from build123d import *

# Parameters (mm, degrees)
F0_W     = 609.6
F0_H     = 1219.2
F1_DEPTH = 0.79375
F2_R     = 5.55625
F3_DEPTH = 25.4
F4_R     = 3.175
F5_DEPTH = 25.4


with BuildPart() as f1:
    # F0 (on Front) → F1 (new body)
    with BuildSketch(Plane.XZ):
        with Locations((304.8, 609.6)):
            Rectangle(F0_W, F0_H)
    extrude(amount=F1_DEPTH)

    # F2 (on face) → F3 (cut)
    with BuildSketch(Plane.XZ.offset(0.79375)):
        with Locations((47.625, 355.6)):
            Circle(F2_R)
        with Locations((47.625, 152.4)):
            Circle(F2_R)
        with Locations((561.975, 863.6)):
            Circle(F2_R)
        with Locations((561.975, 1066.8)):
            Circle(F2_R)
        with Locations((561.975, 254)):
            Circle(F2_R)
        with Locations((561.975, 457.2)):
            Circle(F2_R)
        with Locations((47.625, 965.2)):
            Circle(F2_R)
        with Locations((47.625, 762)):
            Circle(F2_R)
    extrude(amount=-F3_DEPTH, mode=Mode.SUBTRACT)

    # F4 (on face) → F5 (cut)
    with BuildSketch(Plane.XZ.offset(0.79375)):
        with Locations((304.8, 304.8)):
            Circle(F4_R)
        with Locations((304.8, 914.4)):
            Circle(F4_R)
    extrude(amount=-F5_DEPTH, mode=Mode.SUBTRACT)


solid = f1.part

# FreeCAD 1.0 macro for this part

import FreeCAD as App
import Part
import Sketcher
from FreeCAD import Vector
Q = App.Units.Quantity

doc = App.newDocument("Part")
body = doc.addObject("PartDesign::Body", "Body")

# Sketch on XZ plane
sketch1 = doc.addObject("Sketcher::SketchObject", "Sketch")
body.addObject(sketch1)
sketch1.AttachmentSupport = (doc.XZ_Plane, [""])
sketch1.MapMode = "FlatFace"
sketch1.addGeometry([
    Part.LineSegment(Vector(0, 1219, 0), Vector(0, 0, 0)),
    Part.LineSegment(Vector(0, 0, 0), Vector(610, 0, 0)),
    Part.LineSegment(Vector(610, 0, 0), Vector(610, 1219, 0)),
    Part.LineSegment(Vector(610, 1219, 0), Vector(0, 1219, 0)),
], False)
sketch1.addConstraint([
    Sketcher.Constraint("Coincident", 0, 2, 1, 1),
    Sketcher.Constraint("Coincident", 1, 2, 2, 1),
    Sketcher.Constraint("Coincident", 2, 2, 3, 1),
    Sketcher.Constraint("Coincident", 3, 2, 0, 1),
    Sketcher.Constraint("Vertical", 0),
    Sketcher.Constraint("Horizontal", 1),
    Sketcher.Constraint("Vertical", 2),
    Sketcher.Constraint("Horizontal", 3),
    Sketcher.Constraint("Coincident", 0, 2, -1, 1),
    Sketcher.Constraint("DistanceX", 1, 1, 1, 2, Q("24 in")),
    Sketcher.Constraint("DistanceY", 0, 2, 0, 1, Q("48 in")),
])
pad1 = doc.addObject("PartDesign::Pad", "Pad")
body.addObject(pad1)
pad1.Profile = sketch1
pad1.Length = Q("0.03125 in")

# Sketch on XZ plane
sketch2 = doc.addObject("Sketcher::SketchObject", "Sketch001")
body.addObject(sketch2)
sketch2.AttachmentSupport = (doc.XZ_Plane, [""])
sketch2.MapMode = "FlatFace"
sketch2.AttachmentOffset = App.Placement(Vector(0, 0, 0.03125 * 25.4), App.Rotation())
sketch2.addGeometry([
    Part.Circle(Vector(48, 356, 0), Vector(0, 0, 1), 6),  # 0
    Part.Circle(Vector(48, 152, 0), Vector(0, 0, 1), 6),  # 1
    Part.Circle(Vector(562, 864, 0), Vector(0, 0, 1), 6),  # 2
    Part.Circle(Vector(562, 1067, 0), Vector(0, 0, 1), 6),  # 3
    Part.Circle(Vector(562, 254, 0), Vector(0, 0, 1), 6),  # 4
    Part.Circle(Vector(562, 457, 0), Vector(0, 0, 1), 6),  # 5
    Part.Circle(Vector(48, 965, 0), Vector(0, 0, 1), 6),  # 6
    Part.Circle(Vector(48, 762, 0), Vector(0, 0, 1), 6),  # 7
], False)
sketch2.addConstraint([
    Sketcher.Constraint("Equal", 0, 1),
    Sketcher.Constraint("Equal", 1, 2),
    Sketcher.Constraint("Equal", 2, 3),
    Sketcher.Constraint("Equal", 3, 4),
    Sketcher.Constraint("Equal", 4, 5),
    Sketcher.Constraint("Equal", 5, 6),
    Sketcher.Constraint("Equal", 6, 7),
    Sketcher.Constraint("Vertical", 0, 3, 1, 3),
    Sketcher.Constraint("Vertical", 2, 3, 3, 3),
    Sketcher.Constraint("Vertical", 3, 3, 4, 3),
    Sketcher.Constraint("Vertical", 4, 3, 5, 3),
    Sketcher.Constraint("Vertical", 1, 3, 6, 3),
    Sketcher.Constraint("Vertical", 6, 3, 7, 3),
    Sketcher.Constraint("Diameter", 0, Q("0.4375 in")),
    Sketcher.Constraint("DistanceY", -1, 1, 0, 3, Q("14 in")),
    Sketcher.Constraint("DistanceY", -1, 1, 1, 3, Q("6 in")),
    Sketcher.Constraint("DistanceY", -1, 1, 2, 3, Q("34 in")),
    Sketcher.Constraint("DistanceY", -1, 1, 3, 3, Q("42 in")),
    Sketcher.Constraint("DistanceY", -1, 1, 4, 3, Q("10 in")),
    Sketcher.Constraint("DistanceY", -1, 1, 5, 3, Q("18 in")),
    Sketcher.Constraint("DistanceY", -1, 1, 6, 3, Q("38 in")),
    Sketcher.Constraint("DistanceY", -1, 1, 7, 3, Q("30 in")),
    Sketcher.Constraint("DistanceX", 0, 3, 2, 3, Q("20.25 in")),
    Sketcher.Constraint("DistanceX", -1, 1, 0, 3, Q("1.875 in")),
])
pocket1 = doc.addObject("PartDesign::Pocket", "Pocket")
body.addObject(pocket1)
pocket1.Profile = sketch2
pocket1.Length = Q("1 in")

# Sketch on XZ plane
sketch3 = doc.addObject("Sketcher::SketchObject", "Sketch002")
body.addObject(sketch3)
sketch3.AttachmentSupport = (doc.XZ_Plane, [""])
sketch3.MapMode = "FlatFace"
sketch3.AttachmentOffset = App.Placement(Vector(0, 0, 0.03125 * 25.4), App.Rotation())
sketch3.addGeometry([
    Part.Circle(Vector(304.8, 304.8, 0), Vector(0, 0, 1), 3.2),
    Part.Circle(Vector(304.8, 914.4, 0), Vector(0, 0, 1), 3.2),
], False)
sketch3.addConstraint([
    Sketcher.Constraint("Equal", 0, 1),
    Sketcher.Constraint("Vertical", 0, 3, 1, 3),
    Sketcher.Constraint("Diameter", 0, Q("0.25 in")),
    Sketcher.Constraint("DistanceX", -1, 1, 0, 3, Q("12 in")),
    Sketcher.Constraint("DistanceY", -1, 1, 0, 3, Q("12 in")),
    Sketcher.Constraint("DistanceY", -1, 1, 1, 3, Q("36 in")),
])
pocket2 = doc.addObject("PartDesign::Pocket", "Pocket001")
body.addObject(pocket2)
pocket2.Profile = sketch3
pocket2.Length = Q("1 in")

doc.recompute()
